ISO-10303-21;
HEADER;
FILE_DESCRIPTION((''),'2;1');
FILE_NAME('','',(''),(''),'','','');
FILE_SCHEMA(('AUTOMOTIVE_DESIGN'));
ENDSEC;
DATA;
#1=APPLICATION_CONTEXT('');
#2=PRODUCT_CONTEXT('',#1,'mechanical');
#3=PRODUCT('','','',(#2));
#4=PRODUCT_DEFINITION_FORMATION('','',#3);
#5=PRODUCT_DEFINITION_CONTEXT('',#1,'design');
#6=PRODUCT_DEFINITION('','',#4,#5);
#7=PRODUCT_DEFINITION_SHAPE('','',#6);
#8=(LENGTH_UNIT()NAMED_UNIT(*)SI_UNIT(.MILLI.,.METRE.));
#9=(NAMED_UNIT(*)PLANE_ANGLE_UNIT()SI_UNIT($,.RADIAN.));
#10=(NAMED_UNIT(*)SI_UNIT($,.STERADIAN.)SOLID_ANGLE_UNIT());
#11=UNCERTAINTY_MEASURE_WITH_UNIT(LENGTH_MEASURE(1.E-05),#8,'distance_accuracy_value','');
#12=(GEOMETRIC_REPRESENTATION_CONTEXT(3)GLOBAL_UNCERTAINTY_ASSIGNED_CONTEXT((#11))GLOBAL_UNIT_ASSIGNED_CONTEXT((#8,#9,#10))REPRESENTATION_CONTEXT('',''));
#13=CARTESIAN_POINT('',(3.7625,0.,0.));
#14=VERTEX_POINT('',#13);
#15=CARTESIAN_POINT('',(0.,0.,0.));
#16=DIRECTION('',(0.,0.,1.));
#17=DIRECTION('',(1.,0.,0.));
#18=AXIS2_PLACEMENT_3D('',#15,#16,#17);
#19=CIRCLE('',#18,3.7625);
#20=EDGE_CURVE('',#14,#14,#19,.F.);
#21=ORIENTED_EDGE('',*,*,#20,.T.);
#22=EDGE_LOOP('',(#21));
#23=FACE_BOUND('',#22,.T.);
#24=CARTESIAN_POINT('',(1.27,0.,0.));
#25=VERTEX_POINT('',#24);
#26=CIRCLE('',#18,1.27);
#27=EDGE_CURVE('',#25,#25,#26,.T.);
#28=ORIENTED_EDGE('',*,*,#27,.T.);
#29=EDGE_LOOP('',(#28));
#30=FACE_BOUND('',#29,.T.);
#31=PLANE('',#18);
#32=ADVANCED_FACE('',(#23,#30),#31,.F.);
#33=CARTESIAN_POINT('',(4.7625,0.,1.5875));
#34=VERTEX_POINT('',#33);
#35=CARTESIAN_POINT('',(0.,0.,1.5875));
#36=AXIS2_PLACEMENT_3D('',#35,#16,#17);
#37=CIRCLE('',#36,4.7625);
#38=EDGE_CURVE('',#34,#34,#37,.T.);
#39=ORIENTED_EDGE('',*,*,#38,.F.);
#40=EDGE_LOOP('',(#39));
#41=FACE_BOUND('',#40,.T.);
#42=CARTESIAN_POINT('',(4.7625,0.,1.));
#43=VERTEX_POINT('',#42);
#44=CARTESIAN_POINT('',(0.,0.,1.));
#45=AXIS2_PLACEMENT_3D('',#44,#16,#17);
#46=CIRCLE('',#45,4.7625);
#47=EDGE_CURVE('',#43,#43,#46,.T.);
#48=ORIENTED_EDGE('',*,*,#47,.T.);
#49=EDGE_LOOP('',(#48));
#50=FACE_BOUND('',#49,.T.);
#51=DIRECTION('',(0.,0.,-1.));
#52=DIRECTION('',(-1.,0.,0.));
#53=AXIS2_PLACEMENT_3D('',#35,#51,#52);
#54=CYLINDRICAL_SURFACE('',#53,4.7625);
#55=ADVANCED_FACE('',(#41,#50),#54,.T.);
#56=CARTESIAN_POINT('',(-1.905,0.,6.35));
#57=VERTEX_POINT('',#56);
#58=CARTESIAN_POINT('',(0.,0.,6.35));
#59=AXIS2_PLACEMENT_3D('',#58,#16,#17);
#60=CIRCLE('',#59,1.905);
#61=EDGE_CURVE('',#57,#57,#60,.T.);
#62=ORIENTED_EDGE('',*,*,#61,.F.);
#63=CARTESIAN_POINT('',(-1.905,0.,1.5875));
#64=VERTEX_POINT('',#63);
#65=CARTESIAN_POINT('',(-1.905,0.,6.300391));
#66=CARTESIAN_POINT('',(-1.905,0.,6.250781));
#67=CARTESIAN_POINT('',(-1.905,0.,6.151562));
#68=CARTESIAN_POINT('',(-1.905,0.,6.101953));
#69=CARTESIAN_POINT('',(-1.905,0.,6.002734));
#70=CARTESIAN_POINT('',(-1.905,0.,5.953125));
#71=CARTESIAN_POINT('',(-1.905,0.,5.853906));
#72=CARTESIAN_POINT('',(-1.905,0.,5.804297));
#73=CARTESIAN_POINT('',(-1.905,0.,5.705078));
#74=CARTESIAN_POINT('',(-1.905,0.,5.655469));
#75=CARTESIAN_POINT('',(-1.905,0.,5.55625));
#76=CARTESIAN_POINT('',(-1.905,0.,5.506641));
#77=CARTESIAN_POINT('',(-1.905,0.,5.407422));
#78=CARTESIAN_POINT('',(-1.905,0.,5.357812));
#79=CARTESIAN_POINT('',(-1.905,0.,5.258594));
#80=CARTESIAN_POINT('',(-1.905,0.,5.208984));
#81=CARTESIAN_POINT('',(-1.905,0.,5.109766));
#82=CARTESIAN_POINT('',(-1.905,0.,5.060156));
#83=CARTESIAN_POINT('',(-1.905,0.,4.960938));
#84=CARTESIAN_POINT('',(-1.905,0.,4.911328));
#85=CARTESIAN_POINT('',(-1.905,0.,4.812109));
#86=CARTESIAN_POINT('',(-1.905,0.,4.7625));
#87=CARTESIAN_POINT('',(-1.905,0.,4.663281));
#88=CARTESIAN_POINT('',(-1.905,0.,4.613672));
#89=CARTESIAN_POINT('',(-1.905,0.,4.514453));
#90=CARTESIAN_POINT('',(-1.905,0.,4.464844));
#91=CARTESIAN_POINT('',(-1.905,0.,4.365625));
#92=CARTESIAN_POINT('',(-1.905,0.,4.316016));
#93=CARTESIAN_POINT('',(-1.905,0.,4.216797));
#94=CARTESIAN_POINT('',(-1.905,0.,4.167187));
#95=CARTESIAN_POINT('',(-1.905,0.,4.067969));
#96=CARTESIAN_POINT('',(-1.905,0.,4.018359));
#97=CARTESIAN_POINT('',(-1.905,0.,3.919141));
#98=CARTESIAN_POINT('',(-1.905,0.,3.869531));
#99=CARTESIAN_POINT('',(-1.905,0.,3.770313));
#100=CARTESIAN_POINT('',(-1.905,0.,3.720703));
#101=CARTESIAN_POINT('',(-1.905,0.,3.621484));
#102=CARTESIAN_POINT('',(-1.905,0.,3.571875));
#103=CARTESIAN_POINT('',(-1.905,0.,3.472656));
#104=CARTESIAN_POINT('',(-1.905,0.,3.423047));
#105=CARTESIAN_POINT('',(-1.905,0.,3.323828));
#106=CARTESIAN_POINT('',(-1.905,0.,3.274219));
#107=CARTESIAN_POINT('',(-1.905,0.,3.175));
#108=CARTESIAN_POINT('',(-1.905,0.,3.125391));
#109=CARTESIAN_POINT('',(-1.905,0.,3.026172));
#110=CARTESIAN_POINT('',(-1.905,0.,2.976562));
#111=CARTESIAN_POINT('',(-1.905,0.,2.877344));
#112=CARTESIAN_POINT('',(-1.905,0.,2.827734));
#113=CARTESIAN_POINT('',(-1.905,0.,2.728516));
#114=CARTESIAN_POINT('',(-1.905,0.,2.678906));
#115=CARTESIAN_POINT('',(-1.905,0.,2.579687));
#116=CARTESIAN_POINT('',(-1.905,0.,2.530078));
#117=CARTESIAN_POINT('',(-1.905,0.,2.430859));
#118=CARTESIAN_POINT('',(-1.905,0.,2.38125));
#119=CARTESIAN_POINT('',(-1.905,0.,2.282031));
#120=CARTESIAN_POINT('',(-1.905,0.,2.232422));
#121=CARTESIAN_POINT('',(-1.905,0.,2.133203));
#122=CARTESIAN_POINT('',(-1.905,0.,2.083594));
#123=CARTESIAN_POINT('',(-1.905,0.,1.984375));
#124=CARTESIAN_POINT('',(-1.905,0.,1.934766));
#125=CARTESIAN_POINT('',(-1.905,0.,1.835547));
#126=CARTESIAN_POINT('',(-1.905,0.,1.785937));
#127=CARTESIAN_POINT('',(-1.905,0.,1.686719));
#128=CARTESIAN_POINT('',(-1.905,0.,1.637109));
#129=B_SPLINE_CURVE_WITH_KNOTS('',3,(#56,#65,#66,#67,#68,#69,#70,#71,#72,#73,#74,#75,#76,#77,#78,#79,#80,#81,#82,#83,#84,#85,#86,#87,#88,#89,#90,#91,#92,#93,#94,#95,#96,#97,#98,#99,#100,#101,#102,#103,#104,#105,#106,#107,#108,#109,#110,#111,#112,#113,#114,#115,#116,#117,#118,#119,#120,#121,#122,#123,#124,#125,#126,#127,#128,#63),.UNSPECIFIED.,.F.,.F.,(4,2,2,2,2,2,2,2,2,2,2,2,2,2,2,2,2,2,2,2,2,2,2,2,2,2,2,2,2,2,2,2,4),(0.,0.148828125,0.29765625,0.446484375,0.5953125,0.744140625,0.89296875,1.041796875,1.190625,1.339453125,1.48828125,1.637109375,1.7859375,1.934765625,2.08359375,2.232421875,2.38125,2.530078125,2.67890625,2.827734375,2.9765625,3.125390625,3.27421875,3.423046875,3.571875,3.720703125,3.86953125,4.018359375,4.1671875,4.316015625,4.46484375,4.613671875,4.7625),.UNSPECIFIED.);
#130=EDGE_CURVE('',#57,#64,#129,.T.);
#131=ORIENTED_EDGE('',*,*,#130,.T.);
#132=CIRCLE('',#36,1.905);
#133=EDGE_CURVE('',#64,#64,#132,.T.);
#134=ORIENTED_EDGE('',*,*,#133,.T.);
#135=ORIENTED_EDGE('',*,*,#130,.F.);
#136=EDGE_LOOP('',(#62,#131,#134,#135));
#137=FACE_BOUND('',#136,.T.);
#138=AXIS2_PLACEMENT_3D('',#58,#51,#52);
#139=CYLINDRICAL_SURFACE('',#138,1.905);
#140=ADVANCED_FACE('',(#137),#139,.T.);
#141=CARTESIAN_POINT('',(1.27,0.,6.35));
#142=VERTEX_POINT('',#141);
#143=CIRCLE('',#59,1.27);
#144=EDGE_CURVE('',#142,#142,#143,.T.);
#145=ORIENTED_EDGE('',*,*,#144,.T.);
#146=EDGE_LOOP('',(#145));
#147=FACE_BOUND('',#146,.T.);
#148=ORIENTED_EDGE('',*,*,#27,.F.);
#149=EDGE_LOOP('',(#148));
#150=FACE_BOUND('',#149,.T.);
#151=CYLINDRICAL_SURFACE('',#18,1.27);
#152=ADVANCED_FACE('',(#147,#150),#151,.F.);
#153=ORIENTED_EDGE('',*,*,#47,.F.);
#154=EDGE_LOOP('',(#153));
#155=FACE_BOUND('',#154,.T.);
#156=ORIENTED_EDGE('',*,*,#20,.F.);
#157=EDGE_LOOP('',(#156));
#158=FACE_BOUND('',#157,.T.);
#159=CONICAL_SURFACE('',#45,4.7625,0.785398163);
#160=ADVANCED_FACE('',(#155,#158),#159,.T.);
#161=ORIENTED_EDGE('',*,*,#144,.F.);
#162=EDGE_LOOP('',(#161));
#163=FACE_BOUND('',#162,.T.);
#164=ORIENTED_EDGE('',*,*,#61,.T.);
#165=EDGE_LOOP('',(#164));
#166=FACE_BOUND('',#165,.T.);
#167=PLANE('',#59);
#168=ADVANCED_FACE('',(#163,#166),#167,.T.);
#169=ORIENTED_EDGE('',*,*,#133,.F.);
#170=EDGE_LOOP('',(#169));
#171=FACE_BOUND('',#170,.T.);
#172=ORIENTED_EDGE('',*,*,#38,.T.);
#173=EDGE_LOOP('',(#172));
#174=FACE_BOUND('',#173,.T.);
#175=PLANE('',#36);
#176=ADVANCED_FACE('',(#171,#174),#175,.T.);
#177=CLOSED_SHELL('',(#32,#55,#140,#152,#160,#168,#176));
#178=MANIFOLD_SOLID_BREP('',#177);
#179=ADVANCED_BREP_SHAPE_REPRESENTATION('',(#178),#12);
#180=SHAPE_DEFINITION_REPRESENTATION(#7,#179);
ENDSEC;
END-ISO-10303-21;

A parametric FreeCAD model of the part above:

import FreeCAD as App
import Part
import Sketcher
from FreeCAD import Vector
Q = App.Units.Quantity


def edges_at(feature, points):
    """Names of the edges that pass closest to the given points."""
    edges = feature.Shape.Edges
    near = lambda p: min(range(len(edges)), key=lambda i: edges[i].distToShape(Part.Vertex(*p))[0])
    return sorted({f"Edge{near(p) + 1}" for p in points})

doc = App.newDocument("Part")
body = doc.addObject("PartDesign::Body", "Body")

# Sketch on XY plane
sketch1 = body.newObject("Sketcher::SketchObject", "Sketch")
sketch1.AttachmentSupport = (doc.getObject("XY_Plane"), [""])
sketch1.MapMode = "FlatFace"
sketch1.addGeometry(Part.Circle(Vector(0, 0, 0), Vector(0, 0, 1), 4.8), False)
sketch1.addConstraint([
    Sketcher.Constraint("Coincident", 0, 3, -1, 1),
    Sketcher.Constraint("Diameter", 0, Q("0.375 in")),
])
pad1 = body.newObject("PartDesign::Pad", "Pad")
pad1.Profile = sketch1
pad1.Length = Q("0.0625 in")

# Sketch on XY plane
sketch2 = body.newObject("Sketcher::SketchObject", "Sketch001")
sketch2.AttachmentSupport = (doc.getObject("XY_Plane"), [""])
sketch2.MapMode = "FlatFace"
sketch2.AttachmentOffset = App.Placement(Vector(0, 0, 0.0625 * 25.4), App.Rotation())
sketch2.addGeometry(Part.Circle(Vector(0, 0, 0), Vector(0, 0, 1), 1.9), False)
sketch2.addConstraint([
    Sketcher.Constraint("Coincident", 0, 3, -1, 1),
    Sketcher.Constraint("Diameter", 0, Q("0.15 in")),
])
pad2 = body.newObject("PartDesign::Pad", "Pad001")
pad2.Profile = sketch2
pad2.Length = Q("0.1875 in")

# Sketch on XY plane
sketch3 = body.newObject("Sketcher::SketchObject", "Sketch002")
sketch3.AttachmentSupport = (doc.getObject("XY_Plane"), [""])
sketch3.MapMode = "FlatFace"
sketch3.AttachmentOffset = App.Placement(Vector(0, 0, 0.25 * 25.4), App.Rotation())
sketch3.addGeometry(Part.Circle(Vector(0, 0, 0), Vector(0, 0, 1), 1.3), False)
sketch3.addConstraint([
    Sketcher.Constraint("Coincident", 0, 3, -1, 1),
    Sketcher.Constraint("Diameter", 0, Q("0.1 in")),
])
pocket1 = body.newObject("PartDesign::Pocket", "Pocket")
pocket1.Profile = sketch3
pocket1.Type = "ThroughAll"
doc.recompute()

chamfer = body.newObject("PartDesign::Chamfer", "Chamfer")
chamfer.Base = (pocket1, edges_at(pocket1, [(-4.763, 0, 0)]))
chamfer.Size = 1

doc.recompute()
